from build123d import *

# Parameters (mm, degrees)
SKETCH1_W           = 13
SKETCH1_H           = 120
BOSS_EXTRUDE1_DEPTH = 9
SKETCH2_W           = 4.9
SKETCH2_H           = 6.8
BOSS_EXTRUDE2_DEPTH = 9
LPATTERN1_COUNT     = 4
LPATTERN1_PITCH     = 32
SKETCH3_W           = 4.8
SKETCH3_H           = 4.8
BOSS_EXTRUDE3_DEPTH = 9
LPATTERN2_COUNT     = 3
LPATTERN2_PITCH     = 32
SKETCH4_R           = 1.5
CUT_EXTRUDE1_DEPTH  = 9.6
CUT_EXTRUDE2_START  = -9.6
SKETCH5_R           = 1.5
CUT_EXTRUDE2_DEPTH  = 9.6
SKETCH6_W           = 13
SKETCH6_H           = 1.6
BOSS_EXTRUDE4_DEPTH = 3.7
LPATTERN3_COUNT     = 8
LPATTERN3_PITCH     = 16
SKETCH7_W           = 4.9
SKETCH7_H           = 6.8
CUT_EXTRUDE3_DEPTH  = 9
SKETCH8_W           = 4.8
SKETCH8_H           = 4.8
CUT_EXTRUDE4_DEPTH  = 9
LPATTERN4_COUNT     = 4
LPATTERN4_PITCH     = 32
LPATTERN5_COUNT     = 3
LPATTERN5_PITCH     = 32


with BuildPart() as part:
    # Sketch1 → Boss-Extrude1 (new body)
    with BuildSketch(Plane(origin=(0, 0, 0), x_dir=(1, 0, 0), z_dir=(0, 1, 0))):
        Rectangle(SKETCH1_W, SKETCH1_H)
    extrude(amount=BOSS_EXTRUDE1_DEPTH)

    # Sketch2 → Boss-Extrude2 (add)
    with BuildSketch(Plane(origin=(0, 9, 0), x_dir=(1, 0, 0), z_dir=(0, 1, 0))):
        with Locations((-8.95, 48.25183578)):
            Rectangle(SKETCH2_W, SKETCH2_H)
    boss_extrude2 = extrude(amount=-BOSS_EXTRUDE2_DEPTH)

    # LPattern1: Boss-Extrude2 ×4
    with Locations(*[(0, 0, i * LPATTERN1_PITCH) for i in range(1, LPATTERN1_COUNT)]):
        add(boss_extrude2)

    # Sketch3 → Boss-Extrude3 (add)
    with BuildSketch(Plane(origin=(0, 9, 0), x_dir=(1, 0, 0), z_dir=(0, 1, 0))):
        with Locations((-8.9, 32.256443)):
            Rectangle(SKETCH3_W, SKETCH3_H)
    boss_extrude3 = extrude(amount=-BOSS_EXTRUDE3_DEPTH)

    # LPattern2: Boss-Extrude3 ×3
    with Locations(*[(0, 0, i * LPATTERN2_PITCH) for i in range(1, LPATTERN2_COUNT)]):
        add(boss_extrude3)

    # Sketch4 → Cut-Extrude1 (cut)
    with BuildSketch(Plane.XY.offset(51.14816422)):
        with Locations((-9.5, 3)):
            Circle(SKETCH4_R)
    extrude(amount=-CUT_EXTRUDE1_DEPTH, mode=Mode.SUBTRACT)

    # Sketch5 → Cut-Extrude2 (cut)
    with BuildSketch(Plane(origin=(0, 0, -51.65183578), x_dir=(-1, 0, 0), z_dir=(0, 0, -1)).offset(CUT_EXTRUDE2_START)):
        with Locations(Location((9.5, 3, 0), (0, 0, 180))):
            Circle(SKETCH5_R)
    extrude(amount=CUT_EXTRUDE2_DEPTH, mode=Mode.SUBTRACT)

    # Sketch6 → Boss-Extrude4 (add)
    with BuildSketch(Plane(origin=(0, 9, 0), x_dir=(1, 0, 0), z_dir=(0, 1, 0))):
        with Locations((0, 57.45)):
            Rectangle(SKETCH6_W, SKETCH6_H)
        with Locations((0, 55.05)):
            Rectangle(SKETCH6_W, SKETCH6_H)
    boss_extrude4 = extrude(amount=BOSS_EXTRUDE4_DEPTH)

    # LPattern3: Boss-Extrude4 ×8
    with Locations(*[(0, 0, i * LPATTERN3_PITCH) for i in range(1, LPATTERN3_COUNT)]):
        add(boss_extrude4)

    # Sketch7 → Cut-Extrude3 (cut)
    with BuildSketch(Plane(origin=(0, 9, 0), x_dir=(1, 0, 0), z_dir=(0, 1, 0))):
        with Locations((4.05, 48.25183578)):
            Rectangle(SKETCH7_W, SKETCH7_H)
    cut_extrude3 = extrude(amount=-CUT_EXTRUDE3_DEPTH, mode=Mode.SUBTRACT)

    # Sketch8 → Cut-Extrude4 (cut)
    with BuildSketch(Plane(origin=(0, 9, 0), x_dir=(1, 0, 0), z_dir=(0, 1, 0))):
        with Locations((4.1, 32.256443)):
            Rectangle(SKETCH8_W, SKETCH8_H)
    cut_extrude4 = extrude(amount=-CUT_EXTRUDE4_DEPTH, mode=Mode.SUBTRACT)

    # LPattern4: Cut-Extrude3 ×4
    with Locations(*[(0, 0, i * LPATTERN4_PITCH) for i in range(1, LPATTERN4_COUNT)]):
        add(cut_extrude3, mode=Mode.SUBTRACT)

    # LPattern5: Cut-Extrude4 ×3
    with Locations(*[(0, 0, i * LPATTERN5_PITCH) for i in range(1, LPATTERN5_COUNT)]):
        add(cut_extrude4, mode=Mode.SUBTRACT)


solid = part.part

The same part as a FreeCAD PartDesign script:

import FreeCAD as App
import Part
import Sketcher

V = App.Vector


def add_polygon(sketch, points):
    """Adds a closed chain of lines whose ends are joined by coincident constraints."""
    first, n = sketch.GeometryCount, len(points)
    for a, b in zip(points, points[1:] + points[:1]):
        sketch.addGeometry(Part.LineSegment(App.Vector(*a, 0), App.Vector(*b, 0)), False)
    for i in range(n):
        sketch.addConstraint(Sketcher.Constraint("Coincident", first + i, 2, first + (i + 1) % n, 1))

doc = App.newDocument("Part")
body = doc.addObject("PartDesign::Body", "Body")

# Sketch on XZ plane
sketch1 = body.newObject("Sketcher::SketchObject", "Sketch")
sketch1.AttachmentSupport = (doc.getObject("XZ_Plane"), [""])
sketch1.MapMode = "FlatFace"
add_polygon(sketch1, [(-6.5, -60), (-6.5, 60), (6.5, 60), (6.5, -60)])  # lines 0-3
sketch1.addConstraint(Sketcher.Constraint("Vertical", 0))
sketch1.addConstraint(Sketcher.Constraint("Horizontal", 1))
sketch1.addConstraint(Sketcher.Constraint("Vertical", 2))
sketch1.addConstraint(Sketcher.Constraint("Horizontal", 3))
sketch1.addConstraint(Sketcher.Constraint("Symmetric", 0, 2, 2, 2, -1, 1))
sketch1.addConstraint(Sketcher.Constraint("DistanceX", 1, 1, 1, 2, 13.0))
sketch1.addConstraint(Sketcher.Constraint("DistanceY", 0, 1, 0, 2, 120.0))
pad1 = body.newObject("PartDesign::Pad", "Pad")
pad1.Profile = sketch1
pad1.Length = 9
pad1.Reversed = True

# Sketch on XZ plane
sketch2 = body.newObject("Sketcher::SketchObject", "Sketch001")
sketch2.AttachmentSupport = (doc.getObject("XZ_Plane"), [""])
sketch2.MapMode = "FlatFace"
sketch2.AttachmentOffset = App.Placement(V(0, 0, -9), App.Rotation())
add_polygon(sketch2, [(-11.4, -51.651836), (-11.4, -44.851836), (-6.5, -44.851836), (-6.5, -51.651836)])  # lines 0-3
sketch2.addConstraint(Sketcher.Constraint("Vertical", 0))
sketch2.addConstraint(Sketcher.Constraint("Horizontal", 1))
sketch2.addConstraint(Sketcher.Constraint("Vertical", 2))
sketch2.addConstraint(Sketcher.Constraint("Horizontal", 3))
sketch2.addConstraint(Sketcher.Constraint("DistanceX", 1, 1, 1, 2, 4.9))
sketch2.addConstraint(Sketcher.Constraint("DistanceY", 0, 1, 0, 2, 6.8))
sketch2.addConstraint(Sketcher.Constraint("DistanceX", 0, 2, -1, 1, 11.4))
sketch2.addConstraint(Sketcher.Constraint("DistanceY", 0, 2, -1, 1, 44.851836))
pad2 = body.newObject("PartDesign::Pad", "Pad001")
pad2.Profile = sketch2
pad2.Length = 9
doc.recompute()

linearpattern = body.newObject("PartDesign::LinearPattern", "LinearPattern")
linearpattern.Originals = [pad2]
linearpattern.Direction = (doc.getObject("Z_Axis"), [""])
linearpattern.Mode = "offset"
linearpattern.Offset = 32
linearpattern.Occurrences = 4
body.Tip = linearpattern

# Sketch on XZ plane
sketch3 = body.newObject("Sketcher::SketchObject", "Sketch002")
sketch3.AttachmentSupport = (doc.getObject("XZ_Plane"), [""])
sketch3.MapMode = "FlatFace"
sketch3.AttachmentOffset = App.Placement(V(0, 0, -9), App.Rotation())
add_polygon(sketch3, [(-11.3, -34.656443), (-11.3, -29.856443), (-6.5, -29.856443), (-6.5, -34.656443)])  # lines 0-3
sketch3.addConstraint(Sketcher.Constraint("Vertical", 0))
sketch3.addConstraint(Sketcher.Constraint("Horizontal", 1))
sketch3.addConstraint(Sketcher.Constraint("Vertical", 2))
sketch3.addConstraint(Sketcher.Constraint("Horizontal", 3))
sketch3.addConstraint(Sketcher.Constraint("Equal", 3, 0))
sketch3.addConstraint(Sketcher.Constraint("DistanceX", 1, 1, 1, 2, 4.8))
sketch3.addConstraint(Sketcher.Constraint("DistanceX", 0, 2, -1, 1, 11.3))
sketch3.addConstraint(Sketcher.Constraint("DistanceY", 0, 2, -1, 1, 29.856443))
pad3 = body.newObject("PartDesign::Pad", "Pad002")
pad3.Profile = sketch3
pad3.Length = 9
doc.recompute()

linearpattern2 = body.newObject("PartDesign::LinearPattern", "LinearPattern001")
linearpattern2.Originals = [pad3]
linearpattern2.Direction = (doc.getObject("Z_Axis"), [""])
linearpattern2.Mode = "offset"
linearpattern2.Offset = 32
linearpattern2.Occurrences = 3
body.Tip = linearpattern2

# Sketch on XY plane
sketch4 = body.newObject("Sketcher::SketchObject", "Sketch003")
sketch4.AttachmentSupport = (doc.getObject("XY_Plane"), [""])
sketch4.MapMode = "FlatFace"
sketch4.AttachmentOffset = App.Placement(V(0, 0, 51.148164), App.Rotation())
sketch4.addGeometry(Part.Circle(V(-9.5, 3, 0), V(0, 0, 1), 1.5), False)
sketch4.addConstraint(Sketcher.Constraint("Diameter", 0, 3.0))
sketch4.addConstraint(Sketcher.Constraint("DistanceY", -1, 1, 0, 3, 3.0))
sketch4.addConstraint(Sketcher.Constraint("DistanceX", 0, 3, -1, 1, 9.5))
pocket1 = body.newObject("PartDesign::Pocket", "Pocket")
pocket1.Profile = sketch4
pocket1.Length = 9.6

# Sketch on XY plane
sketch5 = body.newObject("Sketcher::SketchObject", "Sketch004")
sketch5.AttachmentSupport = (doc.getObject("XY_Plane"), [""])
sketch5.MapMode = "FlatFace"
sketch5.AttachmentOffset = App.Placement(V(0, 0, -42.051836), App.Rotation())
sketch5.addGeometry(Part.Circle(V(-9.5, 3, 0), V(0, 0, 1), 1.5), False)
sketch5.addConstraint(Sketcher.Constraint("Diameter", 0, 3.0))
sketch5.addConstraint(Sketcher.Constraint("DistanceY", -1, 1, 0, 3, 3.0))
sketch5.addConstraint(Sketcher.Constraint("DistanceX", 0, 3, -1, 1, 9.5))
pocket2 = body.newObject("PartDesign::Pocket", "Pocket001")
pocket2.Profile = sketch5
pocket2.Length = 9.6

# Sketch on XZ plane
sketch6 = body.newObject("Sketcher::SketchObject", "Sketch005")
sketch6.AttachmentSupport = (doc.getObject("XZ_Plane"), [""])
sketch6.MapMode = "FlatFace"
sketch6.AttachmentOffset = App.Placement(V(0, 0, -9), App.Rotation())
add_polygon(sketch6, [(-6.5, -58.25), (-6.5, -56.65), (6.5, -56.65), (6.5, -58.25)])  # lines 0-3
add_polygon(sketch6, [(-6.5, -55.85), (-6.5, -54.25), (6.5, -54.25), (6.5, -55.85)])  # lines 4-7
sketch6.addConstraint(Sketcher.Constraint("Vertical", 0))
sketch6.addConstraint(Sketcher.Constraint("Horizontal", 1))
sketch6.addConstraint(Sketcher.Constraint("Vertical", 2))
sketch6.addConstraint(Sketcher.Constraint("Horizontal", 3))
sketch6.addConstraint(Sketcher.Constraint("Vertical", 4))
sketch6.addConstraint(Sketcher.Constraint("Horizontal", 5))
sketch6.addConstraint(Sketcher.Constraint("Vertical", 6))
sketch6.addConstraint(Sketcher.Constraint("Horizontal", 7))
sketch6.addConstraint(Sketcher.Constraint("Vertical", 3, 2, 4, 2))
sketch6.addConstraint(Sketcher.Constraint("Vertical", 2, 2, 5, 2))
sketch6.addConstraint(Sketcher.Constraint("Equal", 2, 4))
sketch6.addConstraint(Sketcher.Constraint("DistanceX", 1, 1, 1, 2, 13.0))
sketch6.addConstraint(Sketcher.Constraint("DistanceY", 0, 1, 0, 2, 1.6))
sketch6.addConstraint(Sketcher.Constraint("DistanceY", 3, 2, 4, 2, 4.0))
sketch6.addConstraint(Sketcher.Constraint("DistanceX", 0, 2, -1, 1, 6.5))
sketch6.addConstraint(Sketcher.Constraint("DistanceY", 0, 2, -1, 1, 56.65))
pad4 = body.newObject("PartDesign::Pad", "Pad003")
pad4.Profile = sketch6
pad4.Length = 3.7
pad4.Reversed = True
doc.recompute()

linearpattern3 = body.newObject("PartDesign::LinearPattern", "LinearPattern002")
linearpattern3.Originals = [pad4]
linearpattern3.Direction = (doc.getObject("Z_Axis"), [""])
linearpattern3.Mode = "offset"
linearpattern3.Offset = 16
linearpattern3.Occurrences = 8
body.Tip = linearpattern3

# Sketch on XZ plane
sketch7 = body.newObject("Sketcher::SketchObject", "Sketch006")
sketch7.AttachmentSupport = (doc.getObject("XZ_Plane"), [""])
sketch7.MapMode = "FlatFace"
sketch7.AttachmentOffset = App.Placement(V(0, 0, -9), App.Rotation())
add_polygon(sketch7, [(1.6, -51.651836), (1.6, -44.851836), (6.5, -44.851836), (6.5, -51.651836)])  # lines 0-3
sketch7.addConstraint(Sketcher.Constraint("Vertical", 0))
sketch7.addConstraint(Sketcher.Constraint("Horizontal", 1))
sketch7.addConstraint(Sketcher.Constraint("Vertical", 2))
sketch7.addConstraint(Sketcher.Constraint("Horizontal", 3))
sketch7.addConstraint(Sketcher.Constraint("DistanceX", 1, 1, 1, 2, 4.9))
sketch7.addConstraint(Sketcher.Constraint("DistanceY", 0, 1, 0, 2, 6.8))
sketch7.addConstraint(Sketcher.Constraint("DistanceX", -1, 1, 0, 2, 1.6))
sketch7.addConstraint(Sketcher.Constraint("DistanceY", 0, 2, -1, 1, 44.851836))
pocket3 = body.newObject("PartDesign::Pocket", "Pocket002")
pocket3.Profile = sketch7
pocket3.Length = 9
pocket3.Reversed = True

# Sketch on XZ plane
sketch8 = body.newObject("Sketcher::SketchObject", "Sketch007")
sketch8.AttachmentSupport = (doc.getObject("XZ_Plane"), [""])
sketch8.MapMode = "FlatFace"
sketch8.AttachmentOffset = App.Placement(V(0, 0, -9), App.Rotation())
add_polygon(sketch8, [(1.7, -34.656443), (1.7, -29.856443), (6.5, -29.856443), (6.5, -34.656443)])  # lines 0-3
sketch8.addConstraint(Sketcher.Constraint("Vertical", 0))
sketch8.addConstraint(Sketcher.Constraint("Horizontal", 1))
sketch8.addConstraint(Sketcher.Constraint("Vertical", 2))
sketch8.addConstraint(Sketcher.Constraint("Horizontal", 3))
sketch8.addConstraint(Sketcher.Constraint("Equal", 3, 0))
sketch8.addConstraint(Sketcher.Constraint("DistanceX", 1, 1, 1, 2, 4.8))
sketch8.addConstraint(Sketcher.Constraint("DistanceX", -1, 1, 0, 2, 1.7))
sketch8.addConstraint(Sketcher.Constraint("DistanceY", 0, 2, -1, 1, 29.856443))
pocket4 = body.newObject("PartDesign::Pocket", "Pocket003")
pocket4.Profile = sketch8
pocket4.Length = 9
pocket4.Reversed = True
doc.recompute()

linearpattern4 = body.newObject("PartDesign::LinearPattern", "LinearPattern003")
linearpattern4.Originals = [pocket3]
linearpattern4.Direction = (doc.getObject("Z_Axis"), [""])
linearpattern4.Mode = "offset"
linearpattern4.Offset = 32
linearpattern4.Occurrences = 4
body.Tip = linearpattern4
doc.recompute()

linearpattern5 = body.newObject("PartDesign::LinearPattern", "LinearPattern004")
linearpattern5.Originals = [pocket4]
linearpattern5.Direction = (doc.getObject("Z_Axis"), [""])
linearpattern5.Mode = "offset"
linearpattern5.Offset = 32
linearpattern5.Occurrences = 3
body.Tip = linearpattern5

doc.recompute()
